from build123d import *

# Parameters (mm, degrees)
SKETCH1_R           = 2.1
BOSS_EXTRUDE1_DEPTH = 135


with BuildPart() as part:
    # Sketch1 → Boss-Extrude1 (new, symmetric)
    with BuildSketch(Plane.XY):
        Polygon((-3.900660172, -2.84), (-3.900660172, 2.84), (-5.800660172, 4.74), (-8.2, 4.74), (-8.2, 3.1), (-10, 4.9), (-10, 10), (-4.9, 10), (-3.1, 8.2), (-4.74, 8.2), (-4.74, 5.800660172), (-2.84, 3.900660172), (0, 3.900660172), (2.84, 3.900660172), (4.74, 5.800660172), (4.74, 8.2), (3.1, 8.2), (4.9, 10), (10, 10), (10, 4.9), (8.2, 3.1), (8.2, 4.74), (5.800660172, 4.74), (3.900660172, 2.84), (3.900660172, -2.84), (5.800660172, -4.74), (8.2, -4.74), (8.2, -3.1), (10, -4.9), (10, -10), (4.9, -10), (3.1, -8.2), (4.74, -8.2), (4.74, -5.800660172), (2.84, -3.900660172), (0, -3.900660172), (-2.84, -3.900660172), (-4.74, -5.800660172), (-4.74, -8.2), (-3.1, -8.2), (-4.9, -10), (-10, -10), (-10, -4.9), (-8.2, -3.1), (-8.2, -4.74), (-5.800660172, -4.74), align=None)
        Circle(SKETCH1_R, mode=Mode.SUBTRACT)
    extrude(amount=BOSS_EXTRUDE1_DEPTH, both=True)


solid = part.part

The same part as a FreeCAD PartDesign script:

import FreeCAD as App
import Part
import Sketcher
from FreeCAD import Vector
Q = App.Units.Quantity


def add_polygon(sketch, points):
    """Adds a closed chain of lines whose ends are joined by coincident constraints."""
    first, n = sketch.GeometryCount, len(points)
    for a, b in zip(points, points[1:] + points[:1]):
        sketch.addGeometry(Part.LineSegment(App.Vector(*a, 0), App.Vector(*b, 0)), False)
    for i in range(n):
        sketch.addConstraint(Sketcher.Constraint("Coincident", first + i, 2, first + (i + 1) % n, 1))

doc = App.newDocument("Part")
body = doc.addObject("PartDesign::Body", "Body")

# Sketch on XY plane
sketch1 = body.newObject("Sketcher::SketchObject", "Sketch")
sketch1.AttachmentSupport = (doc.getObject("XY_Plane"), [""])
sketch1.MapMode = "FlatFace"
add_polygon(sketch1, [(-3.9, 2.8), (-3.9, -2.8), (-5.8, -4.7), (-8.2, -4.7), (-8.2, -3.1), (-10, -4.9), (-10, -10), (-4.9, -10), (-3.1, -8.2), (-4.7, -8.2), (-4.7, -5.8), (-2.8, -3.9), (2.8, -3.9), (4.7, -5.8), (4.7, -8.2), (3.1, -8.2), (4.9, -10), (10, -10), (10, -4.9), (8.2, -3.1), (8.2, -4.7), (5.8, -4.7), (3.9, -2.8), (3.9, 2.8), (5.8, 4.7), (8.2, 4.7), (8.2, 3.1), (10, 4.9), (10, 10), (4.9, 10), (3.1, 8.2), (4.7, 8.2), (4.7, 5.8), (2.8, 3.9), (-2.8, 3.9), (-4.7, 5.8), (-4.7, 8.2), (-3.1, 8.2), (-4.9, 10), (-10, 10), (-10, 4.9), (-8.2, 3.1), (-8.2, 4.7), (-5.8, 4.7)])  # lines 0-43
sketch1.addGeometry(Part.Circle(Vector(0, 0, 0), Vector(0, 0, 1), 2.1), False)  # 44
sketch1.addConstraint([
    Sketcher.Constraint("Vertical", 0),
    Sketcher.Constraint("Horizontal", 2),
    Sketcher.Constraint("Vertical", 3),
    Sketcher.Constraint("Vertical", 5),
    Sketcher.Constraint("Horizontal", 6),
    Sketcher.Constraint("Horizontal", 8),
    Sketcher.Constraint("Vertical", 9),
    Sketcher.Constraint("Horizontal", 11),
    Sketcher.Constraint("Vertical", 13),
    Sketcher.Constraint("Horizontal", 14),
    Sketcher.Constraint("Horizontal", 16),
    Sketcher.Constraint("Vertical", 17),
    Sketcher.Constraint("Vertical", 19),
    Sketcher.Constraint("Horizontal", 20),
    Sketcher.Constraint("Vertical", 22),
    Sketcher.Constraint("Horizontal", 24),
    Sketcher.Constraint("Vertical", 25),
    Sketcher.Constraint("Vertical", 27),
    Sketcher.Constraint("Horizontal", 28),
    Sketcher.Constraint("Horizontal", 30),
    Sketcher.Constraint("Vertical", 31),
    Sketcher.Constraint("Horizontal", 33),
    Sketcher.Constraint("Vertical", 35),
    Sketcher.Constraint("Horizontal", 36),
    Sketcher.Constraint("Horizontal", 38),
    Sketcher.Constraint("Vertical", 39),
    Sketcher.Constraint("Vertical", 41),
    Sketcher.Constraint("Horizontal", 42),
    Sketcher.Constraint("Coincident", 44, 3, -1, 1),
    Sketcher.Constraint("Symmetric", 0, 2, 22, 2, -1, 1),
    Sketcher.Constraint("Symmetric", 1, 2, 23, 2, -1, 1),
    Sketcher.Constraint("Symmetric", 3, 2, 25, 2, -1, 1),
    Sketcher.Constraint("Symmetric", 4, 2, 26, 2, -1, 1),
    Sketcher.Constraint("Symmetric", 6, 2, 28, 2, -1, 1),
    Sketcher.Constraint("Symmetric", 7, 2, 29, 2, -1, 1),
    Sketcher.Constraint("Symmetric", 9, 2, 31, 2, -1, 1),
    Sketcher.Constraint("Symmetric", 10, 2, 32, 2, -1, 1),
    Sketcher.Constraint("Symmetric", 12, 2, 34, 2, -1, 1),
    Sketcher.Constraint("Symmetric", 14, 2, 36, 2, -1, 1),
    Sketcher.Constraint("Symmetric", 15, 2, 37, 2, -1, 1),
    Sketcher.Constraint("Symmetric", 17, 2, 39, 2, -1, 1),
    Sketcher.Constraint("Symmetric", 18, 2, 40, 2, -1, 1),
    Sketcher.Constraint("Symmetric", 20, 2, 42, 2, -1, 1),
    Sketcher.Constraint("Symmetric", 9, 2, 12, 2, -2),
    Sketcher.Constraint("Symmetric", 7, 2, 14, 2, -2),
    Sketcher.Constraint("Symmetric", 6, 2, 15, 2, -2),
    Sketcher.Constraint("Symmetric", 4, 2, 17, 2, -2),
    Sketcher.Constraint("Symmetric", 3, 2, 18, 2, -2),
    Sketcher.Constraint("Symmetric", 1, 2, 20, 2, -2),
    Sketcher.Constraint("Parallel", 1, 4),
    Sketcher.Constraint("Parallel", 4, 7),
    Sketcher.Constraint("Parallel", 7, 10),
    Sketcher.Constraint("Perpendicular", 10, 12),
    Sketcher.Constraint("Parallel", 12, 15),
    Sketcher.Constraint("Parallel", 18, 21),
    Sketcher.Constraint("Perpendicular", 32, 34),
    Sketcher.Constraint("Parallel", 40, 43),
    Sketcher.Constraint("Equal", 33, 0),
    Sketcher.Constraint("Equal", 36, 3),
    Sketcher.Constraint("Equal", 38, 5),
    Sketcher.Constraint("Equal", 42, 9),
    Sketcher.Constraint("Equal", 4, 7),
    Sketcher.Constraint("Equal", 1, 10),
    Sketcher.Constraint("Diameter", 44, Q("4.2 mm")),
    Sketcher.Constraint("DistanceX", 6, 1, 6, 2, Q("5.1 mm")),
    Sketcher.Constraint("DistanceX", 4, 2, -1, 1, Q("10 mm")),
    Sketcher.Constraint("DistanceX", 7, 2, 15, 2, Q("8 mm")),
    Sketcher.Constraint("DistanceX", 8, 2, 8, 1, Q("1.64 mm")),
    Sketcher.Constraint("DistanceX", 11, 1, 11, 2, Q("5.68 mm")),
    Sketcher.Constraint("DistanceX", 2, 2, 2, 1, Q("2.39934 mm")),
])
pad1 = body.newObject("PartDesign::Pad", "Pad")
pad1.Profile = sketch1
pad1.Length = 270
pad1.Midplane = True

doc.recompute()
